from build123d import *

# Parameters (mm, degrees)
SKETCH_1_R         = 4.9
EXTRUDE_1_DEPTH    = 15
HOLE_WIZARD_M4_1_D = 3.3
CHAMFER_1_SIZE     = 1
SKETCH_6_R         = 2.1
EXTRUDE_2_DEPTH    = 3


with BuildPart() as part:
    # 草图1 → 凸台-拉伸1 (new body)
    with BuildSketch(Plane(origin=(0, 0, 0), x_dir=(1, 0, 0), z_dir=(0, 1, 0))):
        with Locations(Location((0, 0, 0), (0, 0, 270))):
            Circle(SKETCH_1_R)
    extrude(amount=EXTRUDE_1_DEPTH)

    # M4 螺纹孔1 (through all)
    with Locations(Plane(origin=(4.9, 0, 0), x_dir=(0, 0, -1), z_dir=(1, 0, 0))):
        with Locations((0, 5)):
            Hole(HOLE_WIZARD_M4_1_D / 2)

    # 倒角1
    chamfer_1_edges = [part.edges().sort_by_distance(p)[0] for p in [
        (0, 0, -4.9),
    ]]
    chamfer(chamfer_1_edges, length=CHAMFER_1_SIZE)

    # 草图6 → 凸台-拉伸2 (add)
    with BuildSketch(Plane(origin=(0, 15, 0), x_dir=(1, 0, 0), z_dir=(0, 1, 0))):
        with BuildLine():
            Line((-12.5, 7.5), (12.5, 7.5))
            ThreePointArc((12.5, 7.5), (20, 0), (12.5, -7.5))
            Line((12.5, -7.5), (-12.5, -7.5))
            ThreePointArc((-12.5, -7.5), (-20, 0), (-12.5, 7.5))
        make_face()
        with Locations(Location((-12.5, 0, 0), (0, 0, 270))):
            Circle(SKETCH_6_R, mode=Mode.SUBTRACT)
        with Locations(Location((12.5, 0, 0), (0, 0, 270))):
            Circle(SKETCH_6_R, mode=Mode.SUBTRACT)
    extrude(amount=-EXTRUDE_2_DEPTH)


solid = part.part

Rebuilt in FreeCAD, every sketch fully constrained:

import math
import FreeCAD as App
import Part
import Sketcher


def edges_at(feature, points):
    """Names of the edges that pass closest to the given points."""
    edges = feature.Shape.Edges
    near = lambda p: min(range(len(edges)), key=lambda i: edges[i].distToShape(Part.Vertex(*p))[0])
    return sorted({f"Edge{near(p) + 1}" for p in points})

doc = App.newDocument("Part")
body = doc.addObject("PartDesign::Body", "Body")

# Sketch on XZ plane
sketch1 = doc.addObject("Sketcher::SketchObject", "Sketch")
body.addObject(sketch1)
sketch1.AttachmentSupport = (doc.XZ_Plane, [""])
sketch1.MapMode = "FlatFace"
sketch1.addGeometry(Part.Circle(App.Vector(0, 0, 0), App.Vector(0, 0, 1), 4.9), False)
sketch1.addConstraint([
    Sketcher.Constraint("Coincident", 0, 3, -1, 1),
    Sketcher.Constraint("Diameter", 0, 9.8),
])
pad1 = doc.addObject("PartDesign::Pad", "Pad")
body.addObject(pad1)
pad1.Profile = sketch1
pad1.Length = 15
pad1.Reversed = True

# Sketch on YZ plane
sketch2 = doc.addObject("Sketcher::SketchObject", "Sketch001")
body.addObject(sketch2)
sketch2.AttachmentSupport = (doc.YZ_Plane, [""])
sketch2.MapMode = "FlatFace"
sketch2.AttachmentOffset = App.Placement(App.Vector(0, 0, 4.9), App.Rotation())
sketch2.addGeometry(Part.Circle(App.Vector(5, 0, 0), App.Vector(0, 0, 1), 1.65), False)
sketch2.addConstraint([
    Sketcher.Constraint("PointOnObject", 0, 3, -1),
    Sketcher.Constraint("Diameter", 0, 3.3),
    Sketcher.Constraint("DistanceX", -1, 1, 0, 3, 5.0),
])
doc.recompute()
hole = doc.addObject("PartDesign::Hole", "Hole")
body.addObject(hole)
hole.Profile = sketch2
hole.ThreadType = "None"
hole.Diameter = 3.3
hole.DepthType = "ThroughAll"
doc.recompute()

chamfer = doc.addObject("PartDesign::Chamfer", "Chamfer")
body.addObject(chamfer)
chamfer.Base = (hole, edges_at(hole, [(0, 0, -4.9)]))
chamfer.Size = 1

# Sketch on XZ plane
sketch3 = doc.addObject("Sketcher::SketchObject", "Sketch002")
body.addObject(sketch3)
sketch3.AttachmentSupport = (doc.XZ_Plane, [""])
sketch3.MapMode = "FlatFace"
sketch3.AttachmentOffset = App.Placement(App.Vector(0, 0, -15), App.Rotation())
sketch3.addGeometry([
    Part.LineSegment(App.Vector(12.5, -7.5, 0), App.Vector(-12.5, -7.5, 0)),  # 0
    Part.ArcOfCircle(Part.Circle(App.Vector(-12.5, 0, 0), App.Vector(0, 0, 1), 7.5), math.radians(90), math.radians(270)),  # 1
    Part.LineSegment(App.Vector(-12.5, 7.5, 0), App.Vector(12.5, 7.5, 0)),  # 2
    Part.ArcOfCircle(Part.Circle(App.Vector(12.5, 0, 0), App.Vector(0, 0, 1), 7.5), math.radians(-90), math.radians(90)),  # 3
    Part.Circle(App.Vector(12.5, 0, 0), App.Vector(0, 0, 1), 2.1),  # 4
    Part.Circle(App.Vector(-12.5, 0, 0), App.Vector(0, 0, 1), 2.1),  # 5
], False)
sketch3.addConstraint([
    Sketcher.Constraint("Tangent", 0, 2, 1, 2),
    Sketcher.Constraint("Tangent", 1, 1, 2, 1),
    Sketcher.Constraint("Tangent", 2, 2, 3, 2),
    Sketcher.Constraint("Tangent", 3, 1, 0, 1),
    Sketcher.Constraint("Horizontal", 0),
    Sketcher.Constraint("Horizontal", 2),
    Sketcher.Constraint("Coincident", 4, 3, 3, 3),
    Sketcher.Constraint("Coincident", 5, 3, 1, 3),
    Sketcher.Constraint("Equal", 4, 5),
    Sketcher.Constraint("Symmetric", 1, 3, 3, 3, -1, 1),
    Sketcher.Constraint("Diameter", 4, 4.2),
    Sketcher.Constraint("Radius", 1, 7.5),
    Sketcher.Constraint("DistanceX", 0, 2, 0, 1, 25.0),
])
pad2 = doc.addObject("PartDesign::Pad", "Pad001")
body.addObject(pad2)
pad2.Profile = sketch3
pad2.Length = 3

doc.recompute()
